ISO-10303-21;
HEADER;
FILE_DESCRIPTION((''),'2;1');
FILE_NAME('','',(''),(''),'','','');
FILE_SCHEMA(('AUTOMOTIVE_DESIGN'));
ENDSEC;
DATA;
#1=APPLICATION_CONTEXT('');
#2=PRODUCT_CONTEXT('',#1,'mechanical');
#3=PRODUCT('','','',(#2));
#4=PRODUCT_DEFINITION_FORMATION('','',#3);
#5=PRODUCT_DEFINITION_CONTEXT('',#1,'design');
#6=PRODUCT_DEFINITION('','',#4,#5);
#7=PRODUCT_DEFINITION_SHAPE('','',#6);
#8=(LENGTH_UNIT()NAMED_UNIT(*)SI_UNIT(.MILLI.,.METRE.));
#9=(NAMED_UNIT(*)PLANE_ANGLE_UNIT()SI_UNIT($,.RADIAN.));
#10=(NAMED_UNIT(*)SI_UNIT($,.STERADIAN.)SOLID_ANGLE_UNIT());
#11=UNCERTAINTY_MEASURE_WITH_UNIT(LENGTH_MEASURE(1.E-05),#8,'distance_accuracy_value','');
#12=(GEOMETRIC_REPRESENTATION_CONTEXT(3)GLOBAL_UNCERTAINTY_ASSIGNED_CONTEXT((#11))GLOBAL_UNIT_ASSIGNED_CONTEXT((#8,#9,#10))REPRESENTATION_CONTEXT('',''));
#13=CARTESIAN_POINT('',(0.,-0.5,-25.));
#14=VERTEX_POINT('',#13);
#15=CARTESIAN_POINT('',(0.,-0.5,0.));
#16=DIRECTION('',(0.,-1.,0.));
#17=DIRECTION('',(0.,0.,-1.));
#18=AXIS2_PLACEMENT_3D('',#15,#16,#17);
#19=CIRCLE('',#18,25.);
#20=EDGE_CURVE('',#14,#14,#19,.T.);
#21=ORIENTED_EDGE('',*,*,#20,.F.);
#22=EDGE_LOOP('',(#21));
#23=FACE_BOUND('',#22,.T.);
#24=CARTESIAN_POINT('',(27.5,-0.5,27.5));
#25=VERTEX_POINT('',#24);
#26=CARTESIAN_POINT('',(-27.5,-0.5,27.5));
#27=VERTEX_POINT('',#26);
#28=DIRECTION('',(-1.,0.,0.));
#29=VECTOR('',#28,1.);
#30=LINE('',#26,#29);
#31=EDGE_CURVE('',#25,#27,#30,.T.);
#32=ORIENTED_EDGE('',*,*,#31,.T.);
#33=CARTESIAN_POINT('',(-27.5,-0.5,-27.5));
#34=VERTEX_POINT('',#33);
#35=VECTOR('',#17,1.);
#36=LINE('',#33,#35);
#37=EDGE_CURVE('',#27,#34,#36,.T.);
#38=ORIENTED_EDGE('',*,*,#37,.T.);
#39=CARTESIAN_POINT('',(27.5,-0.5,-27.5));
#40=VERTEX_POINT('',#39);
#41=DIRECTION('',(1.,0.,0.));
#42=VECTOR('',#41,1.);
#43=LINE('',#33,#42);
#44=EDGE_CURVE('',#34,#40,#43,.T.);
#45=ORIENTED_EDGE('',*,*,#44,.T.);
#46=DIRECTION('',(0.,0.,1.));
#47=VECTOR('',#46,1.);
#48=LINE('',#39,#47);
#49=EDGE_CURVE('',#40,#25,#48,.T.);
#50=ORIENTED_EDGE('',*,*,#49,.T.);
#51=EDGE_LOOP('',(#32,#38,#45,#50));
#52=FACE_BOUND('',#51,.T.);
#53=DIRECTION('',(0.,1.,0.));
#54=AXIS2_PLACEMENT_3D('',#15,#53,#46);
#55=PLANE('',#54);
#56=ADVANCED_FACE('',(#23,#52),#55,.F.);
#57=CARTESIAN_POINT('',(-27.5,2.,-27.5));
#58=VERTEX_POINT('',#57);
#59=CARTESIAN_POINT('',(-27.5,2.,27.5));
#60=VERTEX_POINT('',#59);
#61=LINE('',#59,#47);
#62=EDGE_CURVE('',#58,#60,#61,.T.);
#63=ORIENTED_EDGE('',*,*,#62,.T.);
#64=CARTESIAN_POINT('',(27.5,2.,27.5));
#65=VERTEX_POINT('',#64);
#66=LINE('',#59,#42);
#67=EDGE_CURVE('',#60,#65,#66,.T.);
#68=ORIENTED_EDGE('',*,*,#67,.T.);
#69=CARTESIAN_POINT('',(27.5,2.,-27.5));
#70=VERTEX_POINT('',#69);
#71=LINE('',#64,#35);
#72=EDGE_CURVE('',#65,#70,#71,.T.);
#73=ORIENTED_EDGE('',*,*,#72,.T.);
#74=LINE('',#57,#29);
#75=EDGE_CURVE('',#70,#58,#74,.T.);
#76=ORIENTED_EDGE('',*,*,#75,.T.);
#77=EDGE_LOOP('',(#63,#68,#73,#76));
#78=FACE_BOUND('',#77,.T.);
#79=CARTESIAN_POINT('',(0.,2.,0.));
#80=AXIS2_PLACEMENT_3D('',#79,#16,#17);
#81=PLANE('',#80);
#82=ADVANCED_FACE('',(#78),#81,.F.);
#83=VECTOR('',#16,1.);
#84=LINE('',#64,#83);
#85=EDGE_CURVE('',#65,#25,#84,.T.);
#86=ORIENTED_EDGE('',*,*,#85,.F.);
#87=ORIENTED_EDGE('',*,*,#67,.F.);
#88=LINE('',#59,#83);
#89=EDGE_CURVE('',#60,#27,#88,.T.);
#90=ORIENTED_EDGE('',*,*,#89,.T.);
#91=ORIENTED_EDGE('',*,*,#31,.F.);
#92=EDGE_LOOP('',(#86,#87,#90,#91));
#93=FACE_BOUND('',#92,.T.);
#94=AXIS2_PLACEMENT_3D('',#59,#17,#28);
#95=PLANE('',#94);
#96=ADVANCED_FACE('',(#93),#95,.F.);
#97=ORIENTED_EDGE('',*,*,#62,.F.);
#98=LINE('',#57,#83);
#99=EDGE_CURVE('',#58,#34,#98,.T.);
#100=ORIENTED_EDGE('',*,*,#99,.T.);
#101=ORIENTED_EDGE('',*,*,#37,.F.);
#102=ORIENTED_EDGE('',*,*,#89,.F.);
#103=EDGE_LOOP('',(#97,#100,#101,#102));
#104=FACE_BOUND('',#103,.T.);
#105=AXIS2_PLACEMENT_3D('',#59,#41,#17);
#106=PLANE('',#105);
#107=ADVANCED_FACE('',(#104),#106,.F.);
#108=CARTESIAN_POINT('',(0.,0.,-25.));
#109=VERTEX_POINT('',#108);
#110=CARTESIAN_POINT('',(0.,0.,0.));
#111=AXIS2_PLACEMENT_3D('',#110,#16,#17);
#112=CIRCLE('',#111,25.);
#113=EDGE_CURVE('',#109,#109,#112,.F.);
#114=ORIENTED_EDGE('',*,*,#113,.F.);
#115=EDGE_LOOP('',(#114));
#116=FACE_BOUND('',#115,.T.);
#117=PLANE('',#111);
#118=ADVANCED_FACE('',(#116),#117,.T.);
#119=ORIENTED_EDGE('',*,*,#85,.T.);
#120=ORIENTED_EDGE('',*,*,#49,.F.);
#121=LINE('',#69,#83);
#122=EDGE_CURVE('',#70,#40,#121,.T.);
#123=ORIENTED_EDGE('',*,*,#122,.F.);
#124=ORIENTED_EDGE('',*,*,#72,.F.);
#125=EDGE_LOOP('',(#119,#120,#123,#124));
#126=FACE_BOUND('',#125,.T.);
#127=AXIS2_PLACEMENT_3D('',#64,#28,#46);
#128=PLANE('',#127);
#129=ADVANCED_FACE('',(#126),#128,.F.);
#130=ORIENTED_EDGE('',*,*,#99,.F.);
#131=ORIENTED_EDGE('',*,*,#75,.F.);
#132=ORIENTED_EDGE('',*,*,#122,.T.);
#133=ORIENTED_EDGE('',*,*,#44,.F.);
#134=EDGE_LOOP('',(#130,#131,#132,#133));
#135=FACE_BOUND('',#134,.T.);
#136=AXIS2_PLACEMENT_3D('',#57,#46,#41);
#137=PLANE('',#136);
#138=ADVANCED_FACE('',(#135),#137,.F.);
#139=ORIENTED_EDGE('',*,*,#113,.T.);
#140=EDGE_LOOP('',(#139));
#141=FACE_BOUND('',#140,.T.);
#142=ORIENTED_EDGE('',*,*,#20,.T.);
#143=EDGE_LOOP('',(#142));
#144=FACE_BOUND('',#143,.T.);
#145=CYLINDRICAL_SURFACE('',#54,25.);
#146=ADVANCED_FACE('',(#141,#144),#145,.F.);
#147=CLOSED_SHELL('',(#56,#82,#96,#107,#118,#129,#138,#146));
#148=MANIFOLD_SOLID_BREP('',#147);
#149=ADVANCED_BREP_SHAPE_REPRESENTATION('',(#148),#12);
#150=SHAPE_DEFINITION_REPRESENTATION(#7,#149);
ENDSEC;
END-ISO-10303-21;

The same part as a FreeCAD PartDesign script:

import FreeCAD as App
import Part
import Sketcher
from FreeCAD import Vector
Q = App.Units.Quantity

doc = App.newDocument("Part")
params = doc.addObject("Spreadsheet::Sheet", "Params")
for row, (alias, value) in enumerate([
    ("sketch1_width", "55 mm"),
    ("pad1_length", "2 mm"),
    ("sketch2_diameter", "50 mm"),
    ("sketch2_width", "55 mm"),
    ("pad2_length", "0.5 mm"),
], start=1):
    params.set(f"A{row}", alias)
    params.set(f"B{row}", "=" + value)
    params.setAlias(f"B{row}", alias)

body = doc.addObject("PartDesign::Body", "Body")

# Sketch on XZ plane
sketch1 = body.newObject("Sketcher::SketchObject", "Sketch")
sketch1.AttachmentSupport = (doc.getObject("XZ_Plane"), [""])
sketch1.MapMode = "FlatFace"
sketch1.addGeometry([
    Part.LineSegment(Vector(-28, -28, 0), Vector(-28, 28, 0)),
    Part.LineSegment(Vector(-28, 28, 0), Vector(28, 28, 0)),
    Part.LineSegment(Vector(28, 28, 0), Vector(28, -28, 0)),
    Part.LineSegment(Vector(28, -28, 0), Vector(-28, -28, 0)),
], False)
sketch1.addConstraint([
    Sketcher.Constraint("Coincident", 0, 2, 1, 1),
    Sketcher.Constraint("Coincident", 1, 2, 2, 1),
    Sketcher.Constraint("Coincident", 2, 2, 3, 1),
    Sketcher.Constraint("Coincident", 3, 2, 0, 1),
    Sketcher.Constraint("Vertical", 0),
    Sketcher.Constraint("Horizontal", 1),
    Sketcher.Constraint("Vertical", 2),
    Sketcher.Constraint("Horizontal", 3),
    Sketcher.Constraint("Symmetric", 0, 2, 2, 2, -1, 1),
    Sketcher.Constraint("Equal", 3, 0),
    Sketcher.Constraint("DistanceX", 1, 1, 1, 2, Q("55 mm")),
])
sketch1.setExpression("Constraints[10]", "Params.sketch1_width")
pad1 = body.newObject("PartDesign::Pad", "Pad")
pad1.Profile = sketch1
pad1.setExpression("Length", "Params.pad1_length")
pad1.Reversed = True

# Sketch on XZ plane
sketch2 = body.newObject("Sketcher::SketchObject", "Sketch001")
sketch2.AttachmentSupport = (doc.getObject("XZ_Plane"), [""])
sketch2.MapMode = "FlatFace"
sketch2.addGeometry([
    Part.LineSegment(Vector(-28, 28, 0), Vector(-28, -28, 0)),  # 0
    Part.LineSegment(Vector(-28, -28, 0), Vector(28, -28, 0)),  # 1
    Part.LineSegment(Vector(28, -28, 0), Vector(28, 28, 0)),  # 2
    Part.LineSegment(Vector(28, 28, 0), Vector(-28, 28, 0)),  # 3
    Part.Circle(Vector(0, 0, 0), Vector(0, 0, 1), 25),  # 4
], False)
sketch2.addConstraint([
    Sketcher.Constraint("Coincident", 0, 2, 1, 1),
    Sketcher.Constraint("Coincident", 1, 2, 2, 1),
    Sketcher.Constraint("Coincident", 2, 2, 3, 1),
    Sketcher.Constraint("Coincident", 3, 2, 0, 1),
    Sketcher.Constraint("Vertical", 0),
    Sketcher.Constraint("Horizontal", 1),
    Sketcher.Constraint("Vertical", 2),
    Sketcher.Constraint("Horizontal", 3),
    Sketcher.Constraint("Coincident", 4, 3, -1, 1),
    Sketcher.Constraint("Symmetric", 0, 2, 2, 2, -1, 1),
    Sketcher.Constraint("Equal", 3, 0),
    Sketcher.Constraint("Diameter", 4, Q("50 mm")),
    Sketcher.Constraint("DistanceX", 1, 1, 1, 2, Q("55 mm")),
])
sketch2.setExpression("Constraints[11]", "Params.sketch2_diameter")
sketch2.setExpression("Constraints[12]", "Params.sketch2_width")
pad2 = body.newObject("PartDesign::Pad", "Pad001")
pad2.Profile = sketch2
pad2.setExpression("Length", "Params.pad2_length")

doc.recompute()
